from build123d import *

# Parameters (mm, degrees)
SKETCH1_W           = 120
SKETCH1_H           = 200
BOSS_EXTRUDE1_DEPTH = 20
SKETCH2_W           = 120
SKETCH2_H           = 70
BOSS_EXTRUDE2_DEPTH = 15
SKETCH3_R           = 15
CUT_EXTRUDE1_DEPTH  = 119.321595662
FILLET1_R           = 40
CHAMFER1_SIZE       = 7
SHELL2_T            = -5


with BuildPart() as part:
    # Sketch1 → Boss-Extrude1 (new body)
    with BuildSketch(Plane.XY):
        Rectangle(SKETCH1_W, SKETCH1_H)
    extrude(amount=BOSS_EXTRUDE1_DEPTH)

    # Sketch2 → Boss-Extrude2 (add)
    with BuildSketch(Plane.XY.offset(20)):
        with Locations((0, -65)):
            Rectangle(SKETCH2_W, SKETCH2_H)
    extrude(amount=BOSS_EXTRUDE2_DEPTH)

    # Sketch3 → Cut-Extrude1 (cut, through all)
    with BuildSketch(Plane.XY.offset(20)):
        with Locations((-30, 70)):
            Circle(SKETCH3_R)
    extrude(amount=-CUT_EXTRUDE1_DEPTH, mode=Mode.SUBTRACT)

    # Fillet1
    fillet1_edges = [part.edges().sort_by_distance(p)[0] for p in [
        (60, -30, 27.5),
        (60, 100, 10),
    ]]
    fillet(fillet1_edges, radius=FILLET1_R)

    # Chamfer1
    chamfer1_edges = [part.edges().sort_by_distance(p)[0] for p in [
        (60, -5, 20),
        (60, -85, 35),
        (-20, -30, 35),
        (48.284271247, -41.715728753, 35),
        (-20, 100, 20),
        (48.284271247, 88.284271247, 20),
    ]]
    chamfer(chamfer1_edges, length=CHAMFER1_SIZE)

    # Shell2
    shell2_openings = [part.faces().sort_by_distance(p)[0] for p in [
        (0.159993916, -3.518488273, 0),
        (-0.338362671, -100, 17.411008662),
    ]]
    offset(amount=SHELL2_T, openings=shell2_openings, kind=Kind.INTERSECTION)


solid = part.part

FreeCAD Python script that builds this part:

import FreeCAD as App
import Part
import Sketcher
from FreeCAD import Vector
Q = App.Units.Quantity


def edges_at(feature, points):
    """Names of the edges that pass closest to the given points."""
    edges = feature.Shape.Edges
    near = lambda p: min(range(len(edges)), key=lambda i: edges[i].distToShape(Part.Vertex(*p))[0])
    return sorted({f"Edge{near(p) + 1}" for p in points})


def faces_at(feature, points):
    """Names of the faces that lie closest to the given points."""
    faces = feature.Shape.Faces
    near = lambda p: min(range(len(faces)), key=lambda i: faces[i].distToShape(Part.Vertex(*p))[0])
    return sorted({f"Face{near(p) + 1}" for p in points})

doc = App.newDocument("Part")
body = doc.addObject("PartDesign::Body", "Body")

# Sketch on XY plane
sketch1 = body.newObject("Sketcher::SketchObject", "Sketch")
sketch1.AttachmentSupport = (doc.getObject("XY_Plane"), [""])
sketch1.MapMode = "FlatFace"
sketch1.addGeometry([
    Part.LineSegment(Vector(-60, 100, 0), Vector(-60, -100, 0)),
    Part.LineSegment(Vector(-60, -100, 0), Vector(60, -100, 0)),
    Part.LineSegment(Vector(60, -100, 0), Vector(60, 100, 0)),
    Part.LineSegment(Vector(60, 100, 0), Vector(-60, 100, 0)),
], False)
sketch1.addConstraint([
    Sketcher.Constraint("Coincident", 0, 2, 1, 1),
    Sketcher.Constraint("Coincident", 1, 2, 2, 1),
    Sketcher.Constraint("Coincident", 2, 2, 3, 1),
    Sketcher.Constraint("Coincident", 3, 2, 0, 1),
    Sketcher.Constraint("Vertical", 0),
    Sketcher.Constraint("Horizontal", 1),
    Sketcher.Constraint("Vertical", 2),
    Sketcher.Constraint("Horizontal", 3),
    Sketcher.Constraint("Symmetric", 0, 2, 2, 2, -1, 1),
    Sketcher.Constraint("DistanceX", 1, 1, 1, 2, Q("120 mm")),
    Sketcher.Constraint("DistanceY", 0, 2, 0, 1, Q("200 mm")),
])
pad1 = body.newObject("PartDesign::Pad", "Pad")
pad1.Profile = sketch1
pad1.Length = 20

# Sketch on XY plane
sketch2 = body.newObject("Sketcher::SketchObject", "Sketch001")
sketch2.AttachmentSupport = (doc.getObject("XY_Plane"), [""])
sketch2.MapMode = "FlatFace"
sketch2.AttachmentOffset = App.Placement(Vector(0, 0, 20), App.Rotation())
sketch2.addGeometry([
    Part.LineSegment(Vector(-60, -30, 0), Vector(-60, -100, 0)),
    Part.LineSegment(Vector(-60, -100, 0), Vector(60, -100, 0)),
    Part.LineSegment(Vector(60, -100, 0), Vector(60, -30, 0)),
    Part.LineSegment(Vector(60, -30, 0), Vector(-60, -30, 0)),
], False)
sketch2.addConstraint([
    Sketcher.Constraint("Coincident", 0, 2, 1, 1),
    Sketcher.Constraint("Coincident", 1, 2, 2, 1),
    Sketcher.Constraint("Coincident", 2, 2, 3, 1),
    Sketcher.Constraint("Coincident", 3, 2, 0, 1),
    Sketcher.Constraint("Vertical", 0),
    Sketcher.Constraint("Horizontal", 1),
    Sketcher.Constraint("Vertical", 2),
    Sketcher.Constraint("Horizontal", 3),
    Sketcher.Constraint("DistanceX", 1, 1, 1, 2, Q("120 mm")),
    Sketcher.Constraint("DistanceY", 0, 2, 0, 1, Q("70 mm")),
    Sketcher.Constraint("DistanceX", 0, 2, -1, 1, Q("60 mm")),
    Sketcher.Constraint("DistanceY", 0, 2, -1, 1, Q("100 mm")),
])
pad2 = body.newObject("PartDesign::Pad", "Pad001")
pad2.Profile = sketch2
pad2.Length = 15

# Sketch on XY plane
sketch3 = body.newObject("Sketcher::SketchObject", "Sketch002")
sketch3.AttachmentSupport = (doc.getObject("XY_Plane"), [""])
sketch3.MapMode = "FlatFace"
sketch3.AttachmentOffset = App.Placement(Vector(0, 0, 20), App.Rotation())
sketch3.addGeometry(Part.Circle(Vector(-30, 70, 0), Vector(0, 0, 1), 15), False)
sketch3.addConstraint([
    Sketcher.Constraint("Diameter", 0, Q("30 mm")),
    Sketcher.Constraint("DistanceX", 0, 3, -1, 1, Q("30 mm")),
    Sketcher.Constraint("DistanceY", -1, 1, 0, 3, Q("70 mm")),
])
pocket1 = body.newObject("PartDesign::Pocket", "Pocket")
pocket1.Profile = sketch3
pocket1.Type = "ThroughAll"
doc.recompute()

fillet = body.newObject("PartDesign::Fillet", "Fillet")
fillet.Base = (pocket1, edges_at(pocket1, [(60, -30, 27.5), (60, 100, 10)]))
fillet.Radius = 40
doc.recompute()

chamfer = body.newObject("PartDesign::Chamfer", "Chamfer")
chamfer.Base = (fillet, edges_at(fillet, [
    (60, -5, 20),
    (60, -85, 35),
    (-20, -30, 35),
    (48.284, -41.716, 35),
    (-20, 100, 20),
    (48.284, 88.284, 20),
]))
chamfer.Size = 7
doc.recompute()

thickness = body.newObject("PartDesign::Thickness", "Thickness")
thickness.Base = (chamfer, faces_at(chamfer, [(0, 0, 0), (0, -100, 17.5)]))
thickness.Value = 5
thickness.Reversed = True
thickness.Join = "Intersection"

doc.recompute()
